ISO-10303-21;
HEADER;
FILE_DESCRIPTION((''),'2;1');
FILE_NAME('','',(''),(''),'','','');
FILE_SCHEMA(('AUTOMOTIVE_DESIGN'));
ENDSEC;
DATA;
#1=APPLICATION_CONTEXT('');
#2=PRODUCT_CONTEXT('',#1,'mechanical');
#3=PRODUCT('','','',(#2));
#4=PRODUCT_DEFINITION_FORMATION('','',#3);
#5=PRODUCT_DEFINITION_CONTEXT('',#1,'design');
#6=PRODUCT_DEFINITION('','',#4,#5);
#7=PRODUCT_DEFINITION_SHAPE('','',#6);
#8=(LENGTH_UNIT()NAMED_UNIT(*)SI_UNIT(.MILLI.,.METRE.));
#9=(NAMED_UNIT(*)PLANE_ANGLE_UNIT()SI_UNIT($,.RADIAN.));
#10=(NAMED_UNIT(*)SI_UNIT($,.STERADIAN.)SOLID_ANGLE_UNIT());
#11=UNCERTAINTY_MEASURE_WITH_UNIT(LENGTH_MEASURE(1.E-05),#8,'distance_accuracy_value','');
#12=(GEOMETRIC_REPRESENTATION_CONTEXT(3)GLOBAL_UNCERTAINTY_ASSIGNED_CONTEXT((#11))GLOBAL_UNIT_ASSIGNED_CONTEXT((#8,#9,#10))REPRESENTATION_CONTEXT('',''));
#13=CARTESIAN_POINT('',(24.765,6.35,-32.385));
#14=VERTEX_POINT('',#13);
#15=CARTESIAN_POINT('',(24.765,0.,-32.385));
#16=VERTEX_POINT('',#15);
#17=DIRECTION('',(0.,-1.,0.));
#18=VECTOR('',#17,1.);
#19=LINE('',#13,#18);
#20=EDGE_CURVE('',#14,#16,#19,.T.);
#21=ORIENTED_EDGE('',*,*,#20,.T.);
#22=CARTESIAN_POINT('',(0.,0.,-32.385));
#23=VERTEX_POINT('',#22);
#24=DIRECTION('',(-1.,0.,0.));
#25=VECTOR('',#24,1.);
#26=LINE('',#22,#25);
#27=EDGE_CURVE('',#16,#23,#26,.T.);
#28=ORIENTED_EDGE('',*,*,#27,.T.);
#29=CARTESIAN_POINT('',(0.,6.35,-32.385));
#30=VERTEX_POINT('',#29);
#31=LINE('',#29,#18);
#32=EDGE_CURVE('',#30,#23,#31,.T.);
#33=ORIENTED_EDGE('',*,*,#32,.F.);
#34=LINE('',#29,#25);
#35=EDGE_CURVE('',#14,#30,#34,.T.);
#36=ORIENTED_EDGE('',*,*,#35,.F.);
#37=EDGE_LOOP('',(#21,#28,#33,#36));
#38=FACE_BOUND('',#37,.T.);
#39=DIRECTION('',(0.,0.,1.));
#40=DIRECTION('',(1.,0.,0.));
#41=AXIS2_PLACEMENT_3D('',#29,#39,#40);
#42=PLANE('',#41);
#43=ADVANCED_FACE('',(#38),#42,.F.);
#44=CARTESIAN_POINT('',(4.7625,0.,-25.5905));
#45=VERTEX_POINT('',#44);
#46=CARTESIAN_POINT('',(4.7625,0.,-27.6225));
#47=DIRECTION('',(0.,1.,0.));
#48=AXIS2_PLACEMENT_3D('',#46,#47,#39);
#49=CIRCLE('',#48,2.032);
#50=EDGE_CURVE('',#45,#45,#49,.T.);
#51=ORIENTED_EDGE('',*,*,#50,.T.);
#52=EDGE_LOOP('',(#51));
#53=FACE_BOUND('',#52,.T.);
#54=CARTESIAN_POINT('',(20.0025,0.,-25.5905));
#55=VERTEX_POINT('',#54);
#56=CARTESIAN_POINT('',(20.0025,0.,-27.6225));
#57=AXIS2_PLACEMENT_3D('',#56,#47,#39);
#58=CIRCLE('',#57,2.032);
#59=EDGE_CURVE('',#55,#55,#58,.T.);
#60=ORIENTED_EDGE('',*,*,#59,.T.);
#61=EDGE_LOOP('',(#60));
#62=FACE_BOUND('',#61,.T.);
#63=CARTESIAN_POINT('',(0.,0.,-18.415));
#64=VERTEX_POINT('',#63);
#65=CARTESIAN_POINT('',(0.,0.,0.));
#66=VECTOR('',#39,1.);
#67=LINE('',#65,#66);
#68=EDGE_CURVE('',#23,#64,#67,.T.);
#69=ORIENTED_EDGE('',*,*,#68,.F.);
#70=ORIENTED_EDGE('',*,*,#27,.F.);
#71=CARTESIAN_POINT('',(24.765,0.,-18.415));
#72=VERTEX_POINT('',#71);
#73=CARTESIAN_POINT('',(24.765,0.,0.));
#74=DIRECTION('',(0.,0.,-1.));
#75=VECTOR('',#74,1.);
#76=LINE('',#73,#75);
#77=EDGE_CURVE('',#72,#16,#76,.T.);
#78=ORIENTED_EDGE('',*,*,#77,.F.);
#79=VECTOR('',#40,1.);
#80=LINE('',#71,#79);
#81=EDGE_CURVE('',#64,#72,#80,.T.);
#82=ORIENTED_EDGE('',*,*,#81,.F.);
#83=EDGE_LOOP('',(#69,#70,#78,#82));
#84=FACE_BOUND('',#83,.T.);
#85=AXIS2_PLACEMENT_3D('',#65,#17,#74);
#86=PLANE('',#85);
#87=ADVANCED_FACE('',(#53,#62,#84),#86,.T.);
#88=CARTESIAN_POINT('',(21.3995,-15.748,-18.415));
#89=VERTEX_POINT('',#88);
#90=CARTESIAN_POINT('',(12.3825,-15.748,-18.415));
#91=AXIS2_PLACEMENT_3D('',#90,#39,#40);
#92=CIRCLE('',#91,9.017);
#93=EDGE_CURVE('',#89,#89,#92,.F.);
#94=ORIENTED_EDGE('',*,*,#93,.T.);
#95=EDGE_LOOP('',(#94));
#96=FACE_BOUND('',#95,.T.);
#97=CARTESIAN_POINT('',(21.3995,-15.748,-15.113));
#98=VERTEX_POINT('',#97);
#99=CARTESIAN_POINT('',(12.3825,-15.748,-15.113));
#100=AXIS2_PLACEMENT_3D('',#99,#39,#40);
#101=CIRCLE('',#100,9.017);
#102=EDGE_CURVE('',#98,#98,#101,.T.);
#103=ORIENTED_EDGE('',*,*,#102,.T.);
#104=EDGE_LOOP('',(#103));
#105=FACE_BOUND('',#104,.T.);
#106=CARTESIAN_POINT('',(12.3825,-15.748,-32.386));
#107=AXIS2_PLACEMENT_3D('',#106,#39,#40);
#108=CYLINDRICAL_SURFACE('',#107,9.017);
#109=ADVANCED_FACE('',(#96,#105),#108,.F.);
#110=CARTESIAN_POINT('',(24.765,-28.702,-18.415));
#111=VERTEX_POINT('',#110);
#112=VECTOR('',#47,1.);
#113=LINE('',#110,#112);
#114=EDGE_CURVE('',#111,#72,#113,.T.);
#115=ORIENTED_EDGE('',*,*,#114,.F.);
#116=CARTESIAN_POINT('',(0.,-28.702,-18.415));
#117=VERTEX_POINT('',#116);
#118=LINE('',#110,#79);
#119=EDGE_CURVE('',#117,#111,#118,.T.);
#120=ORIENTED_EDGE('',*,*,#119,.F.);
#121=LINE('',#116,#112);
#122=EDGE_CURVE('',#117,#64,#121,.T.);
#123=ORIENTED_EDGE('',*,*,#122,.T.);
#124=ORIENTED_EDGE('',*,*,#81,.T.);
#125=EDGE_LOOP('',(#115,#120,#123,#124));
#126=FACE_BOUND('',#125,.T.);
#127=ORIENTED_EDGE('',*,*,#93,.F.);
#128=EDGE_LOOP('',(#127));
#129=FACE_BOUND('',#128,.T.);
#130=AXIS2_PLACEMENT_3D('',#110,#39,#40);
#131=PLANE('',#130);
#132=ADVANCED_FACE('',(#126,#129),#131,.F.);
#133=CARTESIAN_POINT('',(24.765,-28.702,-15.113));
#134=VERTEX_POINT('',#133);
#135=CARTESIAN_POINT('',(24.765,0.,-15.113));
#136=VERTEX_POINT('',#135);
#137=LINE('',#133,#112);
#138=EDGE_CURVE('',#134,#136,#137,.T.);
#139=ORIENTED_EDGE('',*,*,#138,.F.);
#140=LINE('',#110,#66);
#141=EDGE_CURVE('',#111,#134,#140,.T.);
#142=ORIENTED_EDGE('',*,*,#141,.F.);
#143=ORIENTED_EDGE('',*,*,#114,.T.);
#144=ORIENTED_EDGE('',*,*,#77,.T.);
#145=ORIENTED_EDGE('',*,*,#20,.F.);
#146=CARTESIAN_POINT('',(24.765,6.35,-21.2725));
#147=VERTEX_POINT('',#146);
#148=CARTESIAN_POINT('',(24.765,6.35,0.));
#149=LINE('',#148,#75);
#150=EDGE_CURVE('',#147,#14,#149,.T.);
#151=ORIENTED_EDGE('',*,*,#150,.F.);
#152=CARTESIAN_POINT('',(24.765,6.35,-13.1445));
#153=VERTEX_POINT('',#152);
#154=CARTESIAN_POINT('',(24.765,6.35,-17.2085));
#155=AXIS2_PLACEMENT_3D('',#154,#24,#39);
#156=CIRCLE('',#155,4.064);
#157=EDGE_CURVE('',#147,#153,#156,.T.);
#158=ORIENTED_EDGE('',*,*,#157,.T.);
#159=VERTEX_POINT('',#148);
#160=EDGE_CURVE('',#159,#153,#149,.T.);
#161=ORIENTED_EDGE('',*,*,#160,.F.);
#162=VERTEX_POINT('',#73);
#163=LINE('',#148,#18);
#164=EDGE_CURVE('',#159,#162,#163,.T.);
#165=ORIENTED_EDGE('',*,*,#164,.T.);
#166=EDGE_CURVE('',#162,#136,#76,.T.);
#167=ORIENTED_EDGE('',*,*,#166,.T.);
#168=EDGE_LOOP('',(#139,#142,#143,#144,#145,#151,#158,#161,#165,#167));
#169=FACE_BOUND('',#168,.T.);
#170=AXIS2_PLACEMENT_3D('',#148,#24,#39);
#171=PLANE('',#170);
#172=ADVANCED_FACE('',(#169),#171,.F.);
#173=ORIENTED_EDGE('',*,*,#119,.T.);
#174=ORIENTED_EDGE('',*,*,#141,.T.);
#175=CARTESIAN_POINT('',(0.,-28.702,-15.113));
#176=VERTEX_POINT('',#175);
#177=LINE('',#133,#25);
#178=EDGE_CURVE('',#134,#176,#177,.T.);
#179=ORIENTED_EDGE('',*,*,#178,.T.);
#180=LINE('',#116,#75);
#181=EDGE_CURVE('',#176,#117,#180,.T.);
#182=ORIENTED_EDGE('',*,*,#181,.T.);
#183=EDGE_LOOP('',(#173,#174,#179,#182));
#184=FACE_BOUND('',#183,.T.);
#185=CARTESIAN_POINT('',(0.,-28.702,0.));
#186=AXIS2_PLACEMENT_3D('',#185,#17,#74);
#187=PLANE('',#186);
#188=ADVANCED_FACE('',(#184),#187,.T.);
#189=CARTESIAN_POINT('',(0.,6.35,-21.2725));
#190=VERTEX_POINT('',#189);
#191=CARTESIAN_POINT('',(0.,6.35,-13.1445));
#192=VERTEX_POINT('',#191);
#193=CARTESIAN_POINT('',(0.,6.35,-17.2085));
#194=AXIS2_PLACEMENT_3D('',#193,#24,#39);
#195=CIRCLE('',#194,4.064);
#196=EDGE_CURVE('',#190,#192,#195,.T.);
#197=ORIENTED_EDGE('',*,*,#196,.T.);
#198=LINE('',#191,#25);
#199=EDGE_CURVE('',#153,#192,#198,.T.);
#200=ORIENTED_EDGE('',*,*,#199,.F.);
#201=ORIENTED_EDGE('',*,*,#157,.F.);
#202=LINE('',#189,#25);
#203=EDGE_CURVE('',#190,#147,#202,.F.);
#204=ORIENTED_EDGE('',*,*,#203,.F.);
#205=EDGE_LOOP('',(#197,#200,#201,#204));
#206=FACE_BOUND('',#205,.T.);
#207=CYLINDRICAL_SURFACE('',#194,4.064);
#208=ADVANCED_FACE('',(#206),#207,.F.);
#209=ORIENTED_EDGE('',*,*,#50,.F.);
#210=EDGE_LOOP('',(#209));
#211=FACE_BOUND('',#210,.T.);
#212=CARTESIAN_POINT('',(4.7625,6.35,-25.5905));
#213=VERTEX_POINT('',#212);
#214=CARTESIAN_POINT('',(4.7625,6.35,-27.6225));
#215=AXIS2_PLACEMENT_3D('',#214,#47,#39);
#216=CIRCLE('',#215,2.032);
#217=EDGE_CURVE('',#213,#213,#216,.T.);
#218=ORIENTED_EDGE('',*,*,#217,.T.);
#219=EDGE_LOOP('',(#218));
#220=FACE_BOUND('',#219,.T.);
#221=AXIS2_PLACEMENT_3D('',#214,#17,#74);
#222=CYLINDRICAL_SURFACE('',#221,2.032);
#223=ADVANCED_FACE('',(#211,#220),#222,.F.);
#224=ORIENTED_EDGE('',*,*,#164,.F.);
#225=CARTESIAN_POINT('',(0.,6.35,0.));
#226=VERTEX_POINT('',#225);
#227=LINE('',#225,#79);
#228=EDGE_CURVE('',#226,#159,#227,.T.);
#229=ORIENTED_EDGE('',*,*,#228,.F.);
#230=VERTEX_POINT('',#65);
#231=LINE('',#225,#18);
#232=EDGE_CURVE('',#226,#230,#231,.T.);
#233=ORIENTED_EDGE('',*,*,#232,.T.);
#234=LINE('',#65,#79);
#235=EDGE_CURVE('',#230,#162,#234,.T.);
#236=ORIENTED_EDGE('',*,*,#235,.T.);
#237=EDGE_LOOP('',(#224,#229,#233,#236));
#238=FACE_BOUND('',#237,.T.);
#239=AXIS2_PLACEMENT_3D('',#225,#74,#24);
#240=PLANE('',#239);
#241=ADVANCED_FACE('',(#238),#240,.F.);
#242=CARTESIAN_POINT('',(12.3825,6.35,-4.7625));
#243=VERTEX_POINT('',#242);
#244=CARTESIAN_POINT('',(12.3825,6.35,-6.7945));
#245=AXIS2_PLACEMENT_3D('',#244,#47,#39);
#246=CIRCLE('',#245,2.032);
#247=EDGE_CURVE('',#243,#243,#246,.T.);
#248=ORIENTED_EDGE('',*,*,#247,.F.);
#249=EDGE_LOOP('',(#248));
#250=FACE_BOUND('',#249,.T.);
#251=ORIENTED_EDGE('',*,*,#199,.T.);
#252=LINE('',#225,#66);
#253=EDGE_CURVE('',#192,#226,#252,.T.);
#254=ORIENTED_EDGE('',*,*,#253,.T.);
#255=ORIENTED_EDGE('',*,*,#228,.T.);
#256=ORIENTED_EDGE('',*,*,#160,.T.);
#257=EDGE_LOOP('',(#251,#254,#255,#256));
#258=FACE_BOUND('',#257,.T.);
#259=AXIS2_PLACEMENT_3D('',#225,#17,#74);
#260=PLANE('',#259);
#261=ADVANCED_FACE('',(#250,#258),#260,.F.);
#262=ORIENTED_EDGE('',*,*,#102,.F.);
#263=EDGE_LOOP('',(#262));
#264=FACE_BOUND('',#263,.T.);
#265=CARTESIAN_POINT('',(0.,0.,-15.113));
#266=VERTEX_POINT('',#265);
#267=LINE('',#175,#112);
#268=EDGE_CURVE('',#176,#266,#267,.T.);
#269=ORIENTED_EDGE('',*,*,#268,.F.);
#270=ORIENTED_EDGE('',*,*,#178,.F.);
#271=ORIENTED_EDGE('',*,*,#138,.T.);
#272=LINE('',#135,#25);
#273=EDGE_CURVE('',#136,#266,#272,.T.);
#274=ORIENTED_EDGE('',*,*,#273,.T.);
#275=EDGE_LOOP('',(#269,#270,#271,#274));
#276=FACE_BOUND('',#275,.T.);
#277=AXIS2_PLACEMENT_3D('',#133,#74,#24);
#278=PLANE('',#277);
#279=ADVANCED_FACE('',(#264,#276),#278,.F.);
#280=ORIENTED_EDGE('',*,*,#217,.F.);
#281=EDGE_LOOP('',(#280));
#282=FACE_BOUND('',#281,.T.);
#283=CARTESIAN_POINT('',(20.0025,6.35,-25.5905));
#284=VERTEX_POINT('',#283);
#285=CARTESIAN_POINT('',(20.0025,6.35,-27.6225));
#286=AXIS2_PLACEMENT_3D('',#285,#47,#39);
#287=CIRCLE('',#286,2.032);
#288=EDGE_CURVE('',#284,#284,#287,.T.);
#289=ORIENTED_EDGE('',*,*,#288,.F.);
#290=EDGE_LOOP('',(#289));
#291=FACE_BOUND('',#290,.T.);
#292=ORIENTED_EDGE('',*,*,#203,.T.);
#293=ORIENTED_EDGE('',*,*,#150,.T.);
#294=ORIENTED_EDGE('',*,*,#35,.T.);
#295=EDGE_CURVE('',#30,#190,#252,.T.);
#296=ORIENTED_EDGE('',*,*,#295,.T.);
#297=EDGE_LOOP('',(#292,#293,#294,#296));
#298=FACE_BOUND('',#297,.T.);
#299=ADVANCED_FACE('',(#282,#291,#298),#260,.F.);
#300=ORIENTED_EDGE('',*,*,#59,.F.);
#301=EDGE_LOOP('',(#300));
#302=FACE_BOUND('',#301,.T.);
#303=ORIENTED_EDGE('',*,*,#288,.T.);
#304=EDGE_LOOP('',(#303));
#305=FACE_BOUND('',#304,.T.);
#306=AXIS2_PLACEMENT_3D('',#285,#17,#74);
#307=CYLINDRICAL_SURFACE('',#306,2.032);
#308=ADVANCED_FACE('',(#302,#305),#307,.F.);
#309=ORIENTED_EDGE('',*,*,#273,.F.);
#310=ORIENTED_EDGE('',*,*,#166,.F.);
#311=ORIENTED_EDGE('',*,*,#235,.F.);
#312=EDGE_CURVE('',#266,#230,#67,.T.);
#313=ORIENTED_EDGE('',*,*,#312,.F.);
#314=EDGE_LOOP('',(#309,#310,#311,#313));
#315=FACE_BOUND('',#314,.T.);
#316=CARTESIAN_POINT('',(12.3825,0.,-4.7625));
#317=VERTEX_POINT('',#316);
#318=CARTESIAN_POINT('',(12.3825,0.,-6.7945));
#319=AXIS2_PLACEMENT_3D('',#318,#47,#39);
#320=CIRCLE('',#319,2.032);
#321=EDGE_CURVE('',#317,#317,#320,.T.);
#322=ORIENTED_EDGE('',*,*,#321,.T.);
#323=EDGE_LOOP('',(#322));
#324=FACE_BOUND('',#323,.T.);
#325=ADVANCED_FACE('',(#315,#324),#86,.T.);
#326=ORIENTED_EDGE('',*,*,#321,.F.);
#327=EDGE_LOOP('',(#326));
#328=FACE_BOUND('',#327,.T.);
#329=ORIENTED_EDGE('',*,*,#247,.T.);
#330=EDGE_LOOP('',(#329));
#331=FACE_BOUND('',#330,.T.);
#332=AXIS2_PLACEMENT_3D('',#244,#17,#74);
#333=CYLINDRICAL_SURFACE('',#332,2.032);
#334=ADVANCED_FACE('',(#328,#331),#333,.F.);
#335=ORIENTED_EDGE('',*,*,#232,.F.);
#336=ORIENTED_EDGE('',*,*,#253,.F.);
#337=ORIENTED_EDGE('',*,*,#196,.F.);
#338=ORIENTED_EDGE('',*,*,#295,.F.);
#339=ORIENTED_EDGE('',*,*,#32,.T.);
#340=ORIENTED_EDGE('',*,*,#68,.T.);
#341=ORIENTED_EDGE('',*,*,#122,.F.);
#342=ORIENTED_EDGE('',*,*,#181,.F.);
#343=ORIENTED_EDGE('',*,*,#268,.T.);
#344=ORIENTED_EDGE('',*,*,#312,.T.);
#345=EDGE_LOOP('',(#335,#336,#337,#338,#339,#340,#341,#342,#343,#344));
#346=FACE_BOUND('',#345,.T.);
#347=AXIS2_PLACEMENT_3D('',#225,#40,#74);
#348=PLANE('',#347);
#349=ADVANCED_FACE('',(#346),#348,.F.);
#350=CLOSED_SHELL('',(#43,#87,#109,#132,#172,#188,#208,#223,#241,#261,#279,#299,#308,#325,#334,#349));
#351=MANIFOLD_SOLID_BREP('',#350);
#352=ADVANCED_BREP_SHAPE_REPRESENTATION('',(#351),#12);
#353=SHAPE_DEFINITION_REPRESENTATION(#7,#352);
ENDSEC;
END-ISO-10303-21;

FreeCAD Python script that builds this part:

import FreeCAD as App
import Part
import Sketcher
Q = App.Units.Quantity


def add_polygon(sketch, points):
    """Adds a closed chain of lines whose ends are joined by coincident constraints."""
    first, n = sketch.GeometryCount, len(points)
    for a, b in zip(points, points[1:] + points[:1]):
        sketch.addGeometry(Part.LineSegment(App.Vector(*a, 0), App.Vector(*b, 0)), False)
    for i in range(n):
        sketch.addConstraint(Sketcher.Constraint("Coincident", first + i, 2, first + (i + 1) % n, 1))

doc = App.newDocument("Part")
params = doc.addObject("Spreadsheet::Sheet", "Params")
for row, (alias, value) in enumerate([
    ("sketch1_diameter", "0.16 in"),
    ("sketch1_width", "0.975 in"),
    ("sketch1_height", "1.275 in"),
    ("pad1_length", "0.25 in"),
    ("sketch2_height", "0.16 in"),
    ("sketch2_width", "0.975 in"),
    ("groove_angle", "360 deg"),
    ("sketch3_height", "0.13 in"),
    ("sketch3_width", "0.975 in"),
    ("pad2_length", "1.13 in"),
    ("sketch4_diameter", "0.71 in"),
], start=1):
    params.set(f"A{row}", alias)
    params.set(f"B{row}", "=" + value)
    params.setAlias(f"B{row}", alias)

body = doc.addObject("PartDesign::Body", "Body")

sketch1 = body.newObject("Sketcher::SketchObject", "Sketch")
sketch1.AttachmentSupport = (doc.getObject("XZ_Plane"), [""])
sketch1.MapMode = "FlatFace"
add_polygon(sketch1, [(0, -32.4), (0, 0), (24.8, 0), (24.8, -32.4)])
sketch1.addGeometry(Part.Circle(App.Vector(12.4, -6.8, 0), App.Vector(0, 0, 1), 2), False)
sketch1.addGeometry(Part.Circle(App.Vector(4.8, -27.6, 0), App.Vector(0, 0, 1), 2), False)
sketch1.addGeometry(Part.Circle(App.Vector(20, -27.6, 0), App.Vector(0, 0, 1), 2), False)
sketch1.addConstraint([
    Sketcher.Constraint("Vertical", 0),
    Sketcher.Constraint("Horizontal", 1),
    Sketcher.Constraint("Vertical", 2),
    Sketcher.Constraint("Horizontal", 3),
    Sketcher.Constraint("Coincident", 0, 2, -1, 1),
    Sketcher.Constraint("Equal", 4, 5),
    Sketcher.Constraint("Equal", 5, 6),
    Sketcher.Constraint("Horizontal", 5, 3, 6, 3),
    Sketcher.Constraint("Diameter", 4, Q("0.16 in")),
    Sketcher.Constraint("DistanceX", 5, 3, 4, 3, Q("0.3 in")),
    Sketcher.Constraint("DistanceX", 5, 3, 6, 3, Q("0.6 in")),
    Sketcher.Constraint("DistanceX", 1, 1, 1, 2, Q("0.975 in")),
    Sketcher.Constraint("DistanceY", 0, 1, 0, 2, Q("1.275 in")),
    Sketcher.Constraint("DistanceY", 5, 3, 4, 3, Q("0.82 in")),
    Sketcher.Constraint("DistanceX", -1, 1, 5, 3, Q("0.1875 in")),
    Sketcher.Constraint("DistanceY", 2, 2, 6, 3, Q("0.1875 in")),
])
sketch1.setExpression("Constraints[12]", "Params.sketch1_diameter")
sketch1.setExpression("Constraints[15]", "Params.sketch1_width")
sketch1.setExpression("Constraints[16]", "Params.sketch1_height")
pad1 = body.newObject("PartDesign::Pad", "Pad")
pad1.Profile = sketch1
pad1.setExpression("Length", "Params.pad1_length")
pad1.Reversed = True

sketch2 = body.newObject("Sketcher::SketchObject", "Sketch001")
sketch2.AttachmentSupport = (doc.getObject("XZ_Plane"), [""])
sketch2.MapMode = "FlatFace"
sketch2.AttachmentOffset = App.Placement(App.Vector(0, 0, -0.25 * 25.4), App.Rotation())
add_polygon(sketch2, [(0, -17.2), (0, -13.1), (24.8, -13.1), (24.8, -17.2)])
sketch2.addGeometry(Part.LineSegment(App.Vector(0, -17.2, 0), App.Vector(24.8, -17.2, 0)), True)
sketch2.addConstraint([
    Sketcher.Constraint("Vertical", 0),
    Sketcher.Constraint("Horizontal", 1),
    Sketcher.Constraint("Vertical", 2),
    Sketcher.Constraint("Horizontal", 3),
    Sketcher.Constraint("Horizontal", 4),
    Sketcher.Constraint("Coincident", 4, 1, 3, 2),
    Sketcher.Constraint("PointOnObject", 0, 2, -2),
    Sketcher.Constraint("Vertical", 1, 2, 4, 2),
    Sketcher.Constraint("DistanceY", 0, 1, 0, 2, Q("0.16 in")),
    Sketcher.Constraint("DistanceX", 1, 1, 1, 2, Q("0.975 in")),
    Sketcher.Constraint("DistanceY", 0, 2, -1, 1, Q("0.5175 in")),
])
sketch2.setExpression("Constraints[12]", "Params.sketch2_height")
sketch2.setExpression("Constraints[13]", "Params.sketch2_width")
groove = body.newObject("PartDesign::Groove", "Groove")
groove.Profile = sketch2
groove.ReferenceAxis = (sketch2, ["Axis0"])
groove.setExpression("Angle", "Params.groove_angle")

sketch3 = body.newObject("Sketcher::SketchObject", "Sketch002")
sketch3.AttachmentSupport = (doc.getObject("XZ_Plane"), [""])
sketch3.MapMode = "FlatFace"
add_polygon(sketch3, [(0, -15.1), (0, -18.4), (24.8, -18.4), (24.8, -15.1)])
sketch3.addConstraint([
    Sketcher.Constraint("Vertical", 0),
    Sketcher.Constraint("Horizontal", 1),
    Sketcher.Constraint("Vertical", 2),
    Sketcher.Constraint("Horizontal", 3),
    Sketcher.Constraint("PointOnObject", 0, 2, -2),
    Sketcher.Constraint("DistanceY", 0, 2, 0, 1, Q("0.13 in")),
    Sketcher.Constraint("DistanceX", 1, 1, 1, 2, Q("0.975 in")),
    Sketcher.Constraint("DistanceY", 0, 2, -1, 1, Q("0.725 in")),
])
sketch3.setExpression("Constraints[9]", "Params.sketch3_height")
sketch3.setExpression("Constraints[10]", "Params.sketch3_width")
pad2 = body.newObject("PartDesign::Pad", "Pad001")
pad2.Profile = sketch3
pad2.setExpression("Length", "Params.pad2_length")

sketch4 = body.newObject("Sketcher::SketchObject", "Sketch003")
sketch4.AttachmentSupport = (doc.getObject("XY_Plane"), [""])
sketch4.MapMode = "FlatFace"
sketch4.AttachmentOffset = App.Placement(App.Vector(0, 0, -0.595 * 25.4), App.Rotation())
sketch4.addGeometry(Part.Circle(App.Vector(12, -16, 0), App.Vector(0, 0, 1), 9), False)
sketch4.addConstraint([
    Sketcher.Constraint("Diameter", 0, Q("0.71 in")),
    Sketcher.Constraint("DistanceY", 0, 3, -1, 1, Q("0.62 in")),
    Sketcher.Constraint("DistanceX", -1, 1, 0, 3, Q("0.4875 in")),
])
sketch4.setExpression("Constraints[0]", "Params.sketch4_diameter")
pocket1 = body.newObject("PartDesign::Pocket", "Pocket")
pocket1.Profile = sketch4
pocket1.Type = "UpToFirst"

doc.recompute()
